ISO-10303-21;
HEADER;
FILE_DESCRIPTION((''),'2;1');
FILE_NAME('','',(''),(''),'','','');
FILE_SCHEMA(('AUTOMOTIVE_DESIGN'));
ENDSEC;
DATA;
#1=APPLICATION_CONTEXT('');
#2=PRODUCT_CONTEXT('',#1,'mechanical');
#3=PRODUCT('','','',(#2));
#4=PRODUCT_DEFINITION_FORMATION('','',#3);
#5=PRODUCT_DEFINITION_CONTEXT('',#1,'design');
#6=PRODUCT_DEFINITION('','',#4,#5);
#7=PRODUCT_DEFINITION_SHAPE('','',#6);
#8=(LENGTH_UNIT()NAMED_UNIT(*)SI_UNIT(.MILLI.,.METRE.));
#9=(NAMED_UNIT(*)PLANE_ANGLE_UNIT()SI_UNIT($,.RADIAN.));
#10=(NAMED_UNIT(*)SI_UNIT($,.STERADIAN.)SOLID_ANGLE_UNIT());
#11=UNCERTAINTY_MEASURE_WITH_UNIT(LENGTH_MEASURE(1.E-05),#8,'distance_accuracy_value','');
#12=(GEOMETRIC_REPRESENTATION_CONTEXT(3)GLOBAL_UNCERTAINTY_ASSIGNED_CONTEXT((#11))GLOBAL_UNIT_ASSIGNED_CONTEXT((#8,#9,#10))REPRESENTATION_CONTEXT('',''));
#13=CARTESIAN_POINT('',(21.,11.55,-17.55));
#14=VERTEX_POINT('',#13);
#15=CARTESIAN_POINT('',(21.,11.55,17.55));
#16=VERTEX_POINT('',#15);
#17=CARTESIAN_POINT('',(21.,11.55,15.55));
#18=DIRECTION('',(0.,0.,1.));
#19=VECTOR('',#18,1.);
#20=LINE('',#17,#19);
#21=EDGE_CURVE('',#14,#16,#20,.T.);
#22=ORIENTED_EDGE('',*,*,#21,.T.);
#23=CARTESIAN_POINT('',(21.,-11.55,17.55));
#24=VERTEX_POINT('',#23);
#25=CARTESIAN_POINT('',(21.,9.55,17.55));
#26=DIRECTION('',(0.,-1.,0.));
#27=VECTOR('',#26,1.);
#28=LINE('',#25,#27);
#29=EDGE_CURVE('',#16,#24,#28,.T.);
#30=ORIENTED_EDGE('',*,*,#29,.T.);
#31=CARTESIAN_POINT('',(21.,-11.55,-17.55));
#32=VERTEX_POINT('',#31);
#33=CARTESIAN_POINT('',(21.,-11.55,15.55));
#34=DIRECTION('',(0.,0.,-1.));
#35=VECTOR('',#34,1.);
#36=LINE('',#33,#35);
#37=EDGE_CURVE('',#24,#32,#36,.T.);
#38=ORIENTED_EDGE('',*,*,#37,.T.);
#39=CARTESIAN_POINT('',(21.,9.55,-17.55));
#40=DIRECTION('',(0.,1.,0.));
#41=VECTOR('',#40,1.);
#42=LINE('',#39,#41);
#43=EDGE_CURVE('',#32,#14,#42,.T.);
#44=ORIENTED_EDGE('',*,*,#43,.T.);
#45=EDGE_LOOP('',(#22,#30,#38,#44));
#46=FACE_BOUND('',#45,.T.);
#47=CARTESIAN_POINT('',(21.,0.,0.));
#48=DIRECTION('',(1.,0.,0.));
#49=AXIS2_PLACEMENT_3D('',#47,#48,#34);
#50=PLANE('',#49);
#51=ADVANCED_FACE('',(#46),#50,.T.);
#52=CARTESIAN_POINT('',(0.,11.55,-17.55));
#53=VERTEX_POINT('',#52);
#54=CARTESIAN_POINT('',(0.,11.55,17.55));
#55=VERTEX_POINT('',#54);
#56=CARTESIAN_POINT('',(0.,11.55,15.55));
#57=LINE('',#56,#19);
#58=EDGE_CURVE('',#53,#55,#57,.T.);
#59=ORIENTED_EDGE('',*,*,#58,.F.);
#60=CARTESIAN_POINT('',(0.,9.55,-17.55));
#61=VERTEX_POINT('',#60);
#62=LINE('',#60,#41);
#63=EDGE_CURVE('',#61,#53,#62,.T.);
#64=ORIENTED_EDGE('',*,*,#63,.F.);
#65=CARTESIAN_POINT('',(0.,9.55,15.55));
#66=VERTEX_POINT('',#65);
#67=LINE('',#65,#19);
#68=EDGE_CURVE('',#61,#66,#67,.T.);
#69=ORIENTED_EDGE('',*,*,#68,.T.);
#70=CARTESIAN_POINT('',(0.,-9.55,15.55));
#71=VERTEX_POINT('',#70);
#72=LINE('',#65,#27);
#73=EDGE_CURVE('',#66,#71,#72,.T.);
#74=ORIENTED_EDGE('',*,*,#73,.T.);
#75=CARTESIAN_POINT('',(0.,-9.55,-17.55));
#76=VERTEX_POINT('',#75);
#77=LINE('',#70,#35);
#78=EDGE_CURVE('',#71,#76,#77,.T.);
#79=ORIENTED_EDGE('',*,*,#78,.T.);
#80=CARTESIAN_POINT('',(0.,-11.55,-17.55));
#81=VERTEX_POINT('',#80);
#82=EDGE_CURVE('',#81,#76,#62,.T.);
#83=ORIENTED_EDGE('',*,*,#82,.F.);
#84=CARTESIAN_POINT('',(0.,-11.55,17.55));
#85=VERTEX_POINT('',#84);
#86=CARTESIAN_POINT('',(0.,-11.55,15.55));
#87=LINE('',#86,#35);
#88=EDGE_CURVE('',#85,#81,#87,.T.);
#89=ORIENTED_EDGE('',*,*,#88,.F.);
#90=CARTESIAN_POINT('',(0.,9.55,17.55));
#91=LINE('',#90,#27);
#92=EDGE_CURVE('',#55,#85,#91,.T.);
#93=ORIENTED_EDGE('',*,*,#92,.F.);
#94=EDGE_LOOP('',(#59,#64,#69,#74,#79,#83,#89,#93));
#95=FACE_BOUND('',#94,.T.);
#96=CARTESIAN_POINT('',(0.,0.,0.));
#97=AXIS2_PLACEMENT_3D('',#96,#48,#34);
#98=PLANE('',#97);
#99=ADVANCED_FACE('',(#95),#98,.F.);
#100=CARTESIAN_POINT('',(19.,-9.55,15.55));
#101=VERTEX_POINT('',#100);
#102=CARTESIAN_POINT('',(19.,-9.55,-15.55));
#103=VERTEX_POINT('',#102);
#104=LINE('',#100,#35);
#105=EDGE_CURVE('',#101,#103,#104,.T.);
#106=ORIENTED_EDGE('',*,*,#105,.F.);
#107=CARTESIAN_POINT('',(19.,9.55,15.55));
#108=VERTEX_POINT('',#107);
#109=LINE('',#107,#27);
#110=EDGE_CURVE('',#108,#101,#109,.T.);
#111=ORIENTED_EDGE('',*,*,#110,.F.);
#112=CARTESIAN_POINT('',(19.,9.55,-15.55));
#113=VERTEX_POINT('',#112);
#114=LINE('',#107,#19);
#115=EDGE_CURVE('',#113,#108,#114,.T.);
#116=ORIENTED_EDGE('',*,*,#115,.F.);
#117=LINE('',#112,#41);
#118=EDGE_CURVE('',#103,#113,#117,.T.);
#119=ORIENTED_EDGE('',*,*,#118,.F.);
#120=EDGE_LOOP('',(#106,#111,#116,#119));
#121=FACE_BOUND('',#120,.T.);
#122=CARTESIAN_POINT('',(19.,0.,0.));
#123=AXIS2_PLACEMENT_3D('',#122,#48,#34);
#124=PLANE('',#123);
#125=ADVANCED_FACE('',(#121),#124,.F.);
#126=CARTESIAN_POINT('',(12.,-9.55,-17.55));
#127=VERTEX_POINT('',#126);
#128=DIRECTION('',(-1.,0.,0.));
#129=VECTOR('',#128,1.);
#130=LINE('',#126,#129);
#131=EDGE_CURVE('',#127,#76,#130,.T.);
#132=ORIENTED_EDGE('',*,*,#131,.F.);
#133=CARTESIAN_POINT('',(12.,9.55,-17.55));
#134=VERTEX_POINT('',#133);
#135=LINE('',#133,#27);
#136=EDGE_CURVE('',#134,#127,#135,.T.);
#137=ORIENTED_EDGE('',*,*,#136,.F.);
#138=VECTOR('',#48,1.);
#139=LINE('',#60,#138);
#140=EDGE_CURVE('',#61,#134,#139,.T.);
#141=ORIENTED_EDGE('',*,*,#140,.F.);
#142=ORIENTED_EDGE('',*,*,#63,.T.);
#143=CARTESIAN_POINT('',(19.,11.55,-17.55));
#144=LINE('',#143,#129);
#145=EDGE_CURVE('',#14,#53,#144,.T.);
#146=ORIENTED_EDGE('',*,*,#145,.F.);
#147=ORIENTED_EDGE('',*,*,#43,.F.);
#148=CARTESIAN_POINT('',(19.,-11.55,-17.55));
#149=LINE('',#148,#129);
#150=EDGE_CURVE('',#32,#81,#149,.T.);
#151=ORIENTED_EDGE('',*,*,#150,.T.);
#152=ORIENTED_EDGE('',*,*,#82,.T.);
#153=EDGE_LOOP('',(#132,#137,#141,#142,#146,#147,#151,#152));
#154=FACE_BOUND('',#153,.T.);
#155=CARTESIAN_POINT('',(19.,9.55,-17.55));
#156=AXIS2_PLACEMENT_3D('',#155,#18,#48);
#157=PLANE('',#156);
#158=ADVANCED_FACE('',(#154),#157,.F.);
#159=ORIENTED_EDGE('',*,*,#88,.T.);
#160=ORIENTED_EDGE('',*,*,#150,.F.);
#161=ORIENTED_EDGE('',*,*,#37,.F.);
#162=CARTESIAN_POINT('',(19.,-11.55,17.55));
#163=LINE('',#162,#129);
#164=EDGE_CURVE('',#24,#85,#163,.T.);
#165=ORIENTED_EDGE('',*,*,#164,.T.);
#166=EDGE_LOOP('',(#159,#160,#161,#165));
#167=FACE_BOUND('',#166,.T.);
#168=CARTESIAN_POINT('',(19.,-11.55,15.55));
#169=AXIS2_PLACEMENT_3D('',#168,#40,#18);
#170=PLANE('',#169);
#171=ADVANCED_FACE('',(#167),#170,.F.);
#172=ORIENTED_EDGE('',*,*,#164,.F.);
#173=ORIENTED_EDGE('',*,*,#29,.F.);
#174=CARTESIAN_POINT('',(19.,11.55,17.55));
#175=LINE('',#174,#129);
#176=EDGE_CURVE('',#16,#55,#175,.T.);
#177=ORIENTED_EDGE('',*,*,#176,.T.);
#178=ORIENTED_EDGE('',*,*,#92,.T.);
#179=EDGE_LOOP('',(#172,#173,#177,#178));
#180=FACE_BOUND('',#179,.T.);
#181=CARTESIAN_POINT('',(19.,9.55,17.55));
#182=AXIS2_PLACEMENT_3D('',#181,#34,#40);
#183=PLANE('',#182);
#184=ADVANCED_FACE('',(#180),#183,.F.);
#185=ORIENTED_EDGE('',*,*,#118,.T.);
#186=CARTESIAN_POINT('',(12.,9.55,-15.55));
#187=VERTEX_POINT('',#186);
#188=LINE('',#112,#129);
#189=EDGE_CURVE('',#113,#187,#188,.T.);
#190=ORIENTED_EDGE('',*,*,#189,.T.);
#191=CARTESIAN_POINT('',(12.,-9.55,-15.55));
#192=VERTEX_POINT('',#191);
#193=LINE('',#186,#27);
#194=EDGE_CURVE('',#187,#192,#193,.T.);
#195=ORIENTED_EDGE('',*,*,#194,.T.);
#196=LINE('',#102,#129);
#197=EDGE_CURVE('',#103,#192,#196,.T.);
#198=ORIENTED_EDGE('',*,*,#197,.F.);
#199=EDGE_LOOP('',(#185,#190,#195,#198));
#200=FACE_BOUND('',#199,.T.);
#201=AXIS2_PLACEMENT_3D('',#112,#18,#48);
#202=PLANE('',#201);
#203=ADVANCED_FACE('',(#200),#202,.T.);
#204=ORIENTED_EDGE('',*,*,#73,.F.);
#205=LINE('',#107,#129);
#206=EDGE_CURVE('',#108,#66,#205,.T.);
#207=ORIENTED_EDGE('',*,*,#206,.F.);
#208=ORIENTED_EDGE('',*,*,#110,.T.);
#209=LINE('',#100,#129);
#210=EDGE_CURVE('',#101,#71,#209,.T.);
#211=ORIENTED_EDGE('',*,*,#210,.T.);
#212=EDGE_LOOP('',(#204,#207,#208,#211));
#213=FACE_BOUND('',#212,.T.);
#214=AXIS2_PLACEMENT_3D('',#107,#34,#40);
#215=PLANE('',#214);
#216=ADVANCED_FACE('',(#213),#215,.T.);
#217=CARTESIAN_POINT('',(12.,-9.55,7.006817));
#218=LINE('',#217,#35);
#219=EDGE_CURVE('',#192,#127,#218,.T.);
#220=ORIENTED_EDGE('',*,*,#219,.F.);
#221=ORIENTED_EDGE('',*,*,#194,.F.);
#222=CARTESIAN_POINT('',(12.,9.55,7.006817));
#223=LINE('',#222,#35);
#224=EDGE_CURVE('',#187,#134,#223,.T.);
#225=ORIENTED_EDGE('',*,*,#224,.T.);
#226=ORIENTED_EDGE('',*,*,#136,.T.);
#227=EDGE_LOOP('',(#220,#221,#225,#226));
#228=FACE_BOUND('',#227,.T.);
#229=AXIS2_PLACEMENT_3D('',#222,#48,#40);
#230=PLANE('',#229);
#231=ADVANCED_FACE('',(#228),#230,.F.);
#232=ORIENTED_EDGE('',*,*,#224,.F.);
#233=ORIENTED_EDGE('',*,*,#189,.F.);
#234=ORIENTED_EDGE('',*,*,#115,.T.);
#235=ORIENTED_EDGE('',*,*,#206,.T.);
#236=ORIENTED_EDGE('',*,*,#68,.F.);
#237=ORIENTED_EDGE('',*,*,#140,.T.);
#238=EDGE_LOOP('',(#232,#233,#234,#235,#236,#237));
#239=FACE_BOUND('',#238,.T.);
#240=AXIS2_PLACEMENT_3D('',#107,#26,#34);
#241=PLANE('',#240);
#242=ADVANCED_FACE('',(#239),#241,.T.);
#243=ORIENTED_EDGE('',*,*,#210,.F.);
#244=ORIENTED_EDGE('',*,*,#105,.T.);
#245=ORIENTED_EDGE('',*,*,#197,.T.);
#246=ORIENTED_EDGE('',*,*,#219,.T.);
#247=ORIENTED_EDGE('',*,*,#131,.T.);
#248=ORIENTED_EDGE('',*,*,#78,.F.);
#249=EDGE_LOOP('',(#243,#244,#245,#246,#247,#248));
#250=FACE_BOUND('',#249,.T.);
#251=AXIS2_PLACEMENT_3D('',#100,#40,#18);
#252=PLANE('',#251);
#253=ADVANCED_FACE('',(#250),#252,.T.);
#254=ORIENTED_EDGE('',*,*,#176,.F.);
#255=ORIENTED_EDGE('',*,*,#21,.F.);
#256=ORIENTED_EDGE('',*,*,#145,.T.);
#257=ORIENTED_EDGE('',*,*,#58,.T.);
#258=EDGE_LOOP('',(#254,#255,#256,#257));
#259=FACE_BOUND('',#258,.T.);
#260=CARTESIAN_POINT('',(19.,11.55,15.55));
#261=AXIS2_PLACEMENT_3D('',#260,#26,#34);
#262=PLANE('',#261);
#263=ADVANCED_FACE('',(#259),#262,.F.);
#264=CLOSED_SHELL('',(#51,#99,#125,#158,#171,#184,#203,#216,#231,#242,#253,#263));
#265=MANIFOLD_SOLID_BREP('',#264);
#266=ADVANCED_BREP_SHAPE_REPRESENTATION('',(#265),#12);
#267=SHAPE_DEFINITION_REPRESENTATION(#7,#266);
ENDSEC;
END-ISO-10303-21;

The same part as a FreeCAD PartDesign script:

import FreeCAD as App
import Part
import Sketcher


def faces_at(feature, points):
    """Names of the faces that lie closest to the given points."""
    faces = feature.Shape.Faces
    near = lambda p: min(range(len(faces)), key=lambda i: faces[i].distToShape(Part.Vertex(*p))[0])
    return sorted({f"Face{near(p) + 1}" for p in points})

doc = App.newDocument("Part")
body = doc.addObject("PartDesign::Body", "Body")

# Sketch on YZ plane
sketch1 = body.newObject("Sketcher::SketchObject", "Sketch")
sketch1.AttachmentSupport = (doc.getObject("YZ_Plane"), [""])
sketch1.MapMode = "FlatFace"
sketch1.addGeometry([
    Part.LineSegment(App.Vector(10, 16, 0), App.Vector(-10, 16, 0)),
    Part.LineSegment(App.Vector(-10, 16, 0), App.Vector(-10, -16, 0)),
    Part.LineSegment(App.Vector(-10, -16, 0), App.Vector(10, -16, 0)),
    Part.LineSegment(App.Vector(10, -16, 0), App.Vector(10, 16, 0)),
], False)
sketch1.addConstraint([
    Sketcher.Constraint("Coincident", 0, 2, 1, 1),
    Sketcher.Constraint("Coincident", 1, 2, 2, 1),
    Sketcher.Constraint("Coincident", 2, 2, 3, 1),
    Sketcher.Constraint("Coincident", 3, 2, 0, 1),
    Sketcher.Constraint("Horizontal", 0),
    Sketcher.Constraint("Vertical", 1),
    Sketcher.Constraint("Horizontal", 2),
    Sketcher.Constraint("Vertical", 3),
    Sketcher.Constraint("Symmetric", 0, 2, 2, 2, -1, 1),
    Sketcher.Constraint("DistanceX", 0, 2, 0, 1, 19.1),
    Sketcher.Constraint("DistanceY", 1, 2, 1, 1, 31.1),
])
pad1 = body.newObject("PartDesign::Pad", "Pad")
pad1.Profile = sketch1
pad1.Length = 19
doc.recompute()

thickness = body.newObject("PartDesign::Thickness", "Thickness")
thickness.Base = (pad1, faces_at(pad1, [(0, 0, 0)]))
thickness.Value = 2
thickness.Reversed = False
thickness.Join = "Intersection"

# Sketch on XY plane
sketch2 = body.newObject("Sketcher::SketchObject", "Sketch001")
sketch2.AttachmentSupport = (doc.getObject("XY_Plane"), [""])
sketch2.MapMode = "FlatFace"
sketch2.AttachmentOffset = App.Placement(App.Vector(0, 0, -17.55), App.Rotation())
sketch2.addGeometry([
    Part.LineSegment(App.Vector(12, 10, 0), App.Vector(12, -10, 0)),
    Part.LineSegment(App.Vector(12, -10, 0), App.Vector(0, -10, 0)),
    Part.LineSegment(App.Vector(0, -10, 0), App.Vector(0, 10, 0)),
    Part.LineSegment(App.Vector(0, 10, 0), App.Vector(12, 10, 0)),
], False)
sketch2.addConstraint([
    Sketcher.Constraint("Coincident", 0, 2, 1, 1),
    Sketcher.Constraint("Coincident", 1, 2, 2, 1),
    Sketcher.Constraint("Coincident", 2, 2, 3, 1),
    Sketcher.Constraint("Coincident", 3, 2, 0, 1),
    Sketcher.Constraint("Vertical", 0),
    Sketcher.Constraint("Horizontal", 1),
    Sketcher.Constraint("Vertical", 2),
    Sketcher.Constraint("Horizontal", 3),
    Sketcher.Constraint("Symmetric", 1, 2, 2, 2, -1, 1),
    Sketcher.Constraint("DistanceX", 1, 2, 1, 1, 12.0),
    Sketcher.Constraint("DistanceY", 0, 2, 0, 1, 19.1),
])
pocket1 = body.newObject("PartDesign::Pocket", "Pocket")
pocket1.Profile = sketch2
pocket1.Length = 2
pocket1.Reversed = True

doc.recompute()
